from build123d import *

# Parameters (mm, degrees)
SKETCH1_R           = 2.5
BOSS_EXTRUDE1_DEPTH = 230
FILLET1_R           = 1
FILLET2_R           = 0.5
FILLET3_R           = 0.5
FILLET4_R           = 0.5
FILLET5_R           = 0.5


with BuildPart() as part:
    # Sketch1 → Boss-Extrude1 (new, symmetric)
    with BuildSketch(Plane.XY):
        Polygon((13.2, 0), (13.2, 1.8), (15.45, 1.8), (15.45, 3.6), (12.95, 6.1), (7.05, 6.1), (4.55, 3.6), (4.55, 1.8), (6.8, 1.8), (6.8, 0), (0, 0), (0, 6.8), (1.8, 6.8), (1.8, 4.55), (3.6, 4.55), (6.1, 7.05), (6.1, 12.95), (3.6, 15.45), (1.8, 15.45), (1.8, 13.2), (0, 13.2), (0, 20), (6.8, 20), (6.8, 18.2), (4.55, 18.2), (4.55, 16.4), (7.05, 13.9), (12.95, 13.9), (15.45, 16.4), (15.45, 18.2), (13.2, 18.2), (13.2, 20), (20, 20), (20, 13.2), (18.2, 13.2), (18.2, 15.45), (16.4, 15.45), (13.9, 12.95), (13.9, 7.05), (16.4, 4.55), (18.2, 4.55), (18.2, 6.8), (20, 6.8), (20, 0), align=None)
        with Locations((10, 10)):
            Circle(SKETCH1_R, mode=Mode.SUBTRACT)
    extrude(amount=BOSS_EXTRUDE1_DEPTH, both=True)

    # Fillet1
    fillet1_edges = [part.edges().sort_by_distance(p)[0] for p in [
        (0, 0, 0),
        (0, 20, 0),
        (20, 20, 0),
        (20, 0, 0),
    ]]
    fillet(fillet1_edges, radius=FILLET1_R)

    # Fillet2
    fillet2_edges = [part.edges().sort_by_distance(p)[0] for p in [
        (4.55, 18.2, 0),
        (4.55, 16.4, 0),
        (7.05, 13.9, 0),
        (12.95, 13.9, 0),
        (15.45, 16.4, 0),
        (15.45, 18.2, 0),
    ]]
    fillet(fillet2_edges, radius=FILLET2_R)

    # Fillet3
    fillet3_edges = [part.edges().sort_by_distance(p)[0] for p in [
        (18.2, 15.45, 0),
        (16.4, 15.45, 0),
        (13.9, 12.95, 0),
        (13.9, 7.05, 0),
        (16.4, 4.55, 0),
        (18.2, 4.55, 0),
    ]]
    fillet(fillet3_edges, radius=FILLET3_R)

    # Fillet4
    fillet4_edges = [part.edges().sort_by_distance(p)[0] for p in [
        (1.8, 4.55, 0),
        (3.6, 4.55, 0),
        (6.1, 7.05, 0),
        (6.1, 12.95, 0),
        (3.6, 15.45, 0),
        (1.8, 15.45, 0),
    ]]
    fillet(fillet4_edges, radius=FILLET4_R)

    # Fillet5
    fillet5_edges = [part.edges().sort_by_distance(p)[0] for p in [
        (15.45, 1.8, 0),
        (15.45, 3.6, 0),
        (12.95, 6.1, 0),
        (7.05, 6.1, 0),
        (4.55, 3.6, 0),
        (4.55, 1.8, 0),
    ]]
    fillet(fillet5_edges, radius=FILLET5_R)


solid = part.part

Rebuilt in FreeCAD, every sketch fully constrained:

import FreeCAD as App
import Part
import Sketcher

V = App.Vector


def edges_at(feature, points):
    """Names of the edges that pass closest to the given points."""
    edges = feature.Shape.Edges
    near = lambda p: min(range(len(edges)), key=lambda i: edges[i].distToShape(Part.Vertex(*p))[0])
    return sorted({f"Edge{near(p) + 1}" for p in points})

doc = App.newDocument("Part")
body = doc.addObject("PartDesign::Body", "Body")

# Sketch on XY plane
sketch1 = doc.addObject("Sketcher::SketchObject", "Sketch")
body.addObject(sketch1)
sketch1.AttachmentSupport = (doc.XY_Plane, [""])
sketch1.MapMode = "FlatFace"
sketch1.addGeometry([
    Part.LineSegment(V(13.2, 1.8, 0), V(13.2, 0, 0)),  # 0
    Part.LineSegment(V(13.2, 0, 0), V(20, 0, 0)),  # 1
    Part.LineSegment(V(20, 0, 0), V(20, 6.8, 0)),  # 2
    Part.LineSegment(V(20, 6.8, 0), V(18.2, 6.8, 0)),  # 3
    Part.LineSegment(V(18.2, 6.8, 0), V(18.2, 4.55, 0)),  # 4
    Part.LineSegment(V(18.2, 4.55, 0), V(16.4, 4.55, 0)),  # 5
    Part.LineSegment(V(16.4, 4.55, 0), V(13.9, 7.05, 0)),  # 6
    Part.LineSegment(V(13.9, 7.05, 0), V(13.9, 12.95, 0)),  # 7
    Part.LineSegment(V(13.9, 12.95, 0), V(16.4, 15.45, 0)),  # 8
    Part.LineSegment(V(16.4, 15.45, 0), V(18.2, 15.45, 0)),  # 9
    Part.LineSegment(V(18.2, 15.45, 0), V(18.2, 13.2, 0)),  # 10
    Part.LineSegment(V(18.2, 13.2, 0), V(20, 13.2, 0)),  # 11
    Part.LineSegment(V(20, 13.2, 0), V(20, 20, 0)),  # 12
    Part.LineSegment(V(20, 20, 0), V(13.2, 20, 0)),  # 13
    Part.LineSegment(V(13.2, 20, 0), V(13.2, 18.2, 0)),  # 14
    Part.LineSegment(V(13.2, 18.2, 0), V(15.45, 18.2, 0)),  # 15
    Part.LineSegment(V(15.45, 18.2, 0), V(15.45, 16.4, 0)),  # 16
    Part.LineSegment(V(15.45, 16.4, 0), V(12.95, 13.9, 0)),  # 17
    Part.LineSegment(V(12.95, 13.9, 0), V(7.05, 13.9, 0)),  # 18
    Part.LineSegment(V(7.05, 13.9, 0), V(4.55, 16.4, 0)),  # 19
    Part.LineSegment(V(4.55, 16.4, 0), V(4.55, 18.2, 0)),  # 20
    Part.LineSegment(V(4.55, 18.2, 0), V(6.8, 18.2, 0)),  # 21
    Part.LineSegment(V(6.8, 18.2, 0), V(6.8, 20, 0)),  # 22
    Part.LineSegment(V(6.8, 20, 0), V(0, 20, 0)),  # 23
    Part.LineSegment(V(0, 20, 0), V(0, 13.2, 0)),  # 24
    Part.LineSegment(V(0, 13.2, 0), V(1.8, 13.2, 0)),  # 25
    Part.LineSegment(V(1.8, 13.2, 0), V(1.8, 15.45, 0)),  # 26
    Part.LineSegment(V(1.8, 15.45, 0), V(3.6, 15.45, 0)),  # 27
    Part.LineSegment(V(3.6, 15.45, 0), V(6.1, 12.95, 0)),  # 28
    Part.LineSegment(V(6.1, 12.95, 0), V(6.1, 7.05, 0)),  # 29
    Part.LineSegment(V(6.1, 7.05, 0), V(3.6, 4.55, 0)),  # 30
    Part.LineSegment(V(3.6, 4.55, 0), V(1.8, 4.55, 0)),  # 31
    Part.LineSegment(V(1.8, 4.55, 0), V(1.8, 6.8, 0)),  # 32
    Part.LineSegment(V(1.8, 6.8, 0), V(0, 6.8, 0)),  # 33
    Part.LineSegment(V(0, 6.8, 0), V(0, 0, 0)),  # 34
    Part.LineSegment(V(0, 0, 0), V(6.8, 0, 0)),  # 35
    Part.LineSegment(V(6.8, 0, 0), V(6.8, 1.8, 0)),  # 36
    Part.LineSegment(V(6.8, 1.8, 0), V(4.55, 1.8, 0)),  # 37
    Part.LineSegment(V(4.55, 1.8, 0), V(4.55, 3.6, 0)),  # 38
    Part.LineSegment(V(4.55, 3.6, 0), V(7.05, 6.1, 0)),  # 39
    Part.LineSegment(V(7.05, 6.1, 0), V(12.95, 6.1, 0)),  # 40
    Part.LineSegment(V(12.95, 6.1, 0), V(15.45, 3.6, 0)),  # 41
    Part.LineSegment(V(15.45, 3.6, 0), V(15.45, 1.8, 0)),  # 42
    Part.LineSegment(V(15.45, 1.8, 0), V(13.2, 1.8, 0)),  # 43
    Part.Circle(V(10, 10, 0), V(0, 0, 1), 2.5),  # 44
], False)
sketch1.addConstraint([
    Sketcher.Constraint("Coincident", 0, 2, 1, 1),
    Sketcher.Constraint("Coincident", 1, 2, 2, 1),
    Sketcher.Constraint("Coincident", 2, 2, 3, 1),
    Sketcher.Constraint("Coincident", 3, 2, 4, 1),
    Sketcher.Constraint("Coincident", 4, 2, 5, 1),
    Sketcher.Constraint("Coincident", 5, 2, 6, 1),
    Sketcher.Constraint("Coincident", 6, 2, 7, 1),
    Sketcher.Constraint("Coincident", 7, 2, 8, 1),
    Sketcher.Constraint("Coincident", 8, 2, 9, 1),
    Sketcher.Constraint("Coincident", 9, 2, 10, 1),
    Sketcher.Constraint("Coincident", 10, 2, 11, 1),
    Sketcher.Constraint("Coincident", 11, 2, 12, 1),
    Sketcher.Constraint("Coincident", 12, 2, 13, 1),
    Sketcher.Constraint("Coincident", 13, 2, 14, 1),
    Sketcher.Constraint("Coincident", 14, 2, 15, 1),
    Sketcher.Constraint("Coincident", 15, 2, 16, 1),
    Sketcher.Constraint("Coincident", 16, 2, 17, 1),
    Sketcher.Constraint("Coincident", 17, 2, 18, 1),
    Sketcher.Constraint("Coincident", 18, 2, 19, 1),
    Sketcher.Constraint("Coincident", 19, 2, 20, 1),
    Sketcher.Constraint("Coincident", 20, 2, 21, 1),
    Sketcher.Constraint("Coincident", 21, 2, 22, 1),
    Sketcher.Constraint("Coincident", 22, 2, 23, 1),
    Sketcher.Constraint("Coincident", 23, 2, 24, 1),
    Sketcher.Constraint("Coincident", 24, 2, 25, 1),
    Sketcher.Constraint("Coincident", 25, 2, 26, 1),
    Sketcher.Constraint("Coincident", 26, 2, 27, 1),
    Sketcher.Constraint("Coincident", 27, 2, 28, 1),
    Sketcher.Constraint("Coincident", 28, 2, 29, 1),
    Sketcher.Constraint("Coincident", 29, 2, 30, 1),
    Sketcher.Constraint("Coincident", 30, 2, 31, 1),
    Sketcher.Constraint("Coincident", 31, 2, 32, 1),
    Sketcher.Constraint("Coincident", 32, 2, 33, 1),
    Sketcher.Constraint("Coincident", 33, 2, 34, 1),
    Sketcher.Constraint("Coincident", 34, 2, 35, 1),
    Sketcher.Constraint("Coincident", 35, 2, 36, 1),
    Sketcher.Constraint("Coincident", 36, 2, 37, 1),
    Sketcher.Constraint("Coincident", 37, 2, 38, 1),
    Sketcher.Constraint("Coincident", 38, 2, 39, 1),
    Sketcher.Constraint("Coincident", 39, 2, 40, 1),
    Sketcher.Constraint("Coincident", 40, 2, 41, 1),
    Sketcher.Constraint("Coincident", 41, 2, 42, 1),
    Sketcher.Constraint("Coincident", 42, 2, 43, 1),
    Sketcher.Constraint("Coincident", 43, 2, 0, 1),
    Sketcher.Constraint("Vertical", 0),
    Sketcher.Constraint("Horizontal", 1),
    Sketcher.Constraint("Vertical", 2),
    Sketcher.Constraint("Horizontal", 3),
    Sketcher.Constraint("Vertical", 4),
    Sketcher.Constraint("Horizontal", 5),
    Sketcher.Constraint("Vertical", 7),
    Sketcher.Constraint("Horizontal", 9),
    Sketcher.Constraint("Vertical", 10),
    Sketcher.Constraint("Horizontal", 11),
    Sketcher.Constraint("Vertical", 12),
    Sketcher.Constraint("Horizontal", 13),
    Sketcher.Constraint("Vertical", 14),
    Sketcher.Constraint("Horizontal", 15),
    Sketcher.Constraint("Vertical", 16),
    Sketcher.Constraint("Horizontal", 18),
    Sketcher.Constraint("Vertical", 20),
    Sketcher.Constraint("Horizontal", 21),
    Sketcher.Constraint("Vertical", 22),
    Sketcher.Constraint("Horizontal", 23),
    Sketcher.Constraint("Vertical", 24),
    Sketcher.Constraint("Horizontal", 25),
    Sketcher.Constraint("Vertical", 26),
    Sketcher.Constraint("Horizontal", 27),
    Sketcher.Constraint("Vertical", 29),
    Sketcher.Constraint("Horizontal", 31),
    Sketcher.Constraint("Vertical", 32),
    Sketcher.Constraint("Horizontal", 33),
    Sketcher.Constraint("Vertical", 34),
    Sketcher.Constraint("Horizontal", 35),
    Sketcher.Constraint("Vertical", 36),
    Sketcher.Constraint("Horizontal", 37),
    Sketcher.Constraint("Vertical", 38),
    Sketcher.Constraint("Horizontal", 40),
    Sketcher.Constraint("Vertical", 42),
    Sketcher.Constraint("Horizontal", 43),
    Sketcher.Constraint("Coincident", 34, 2, -1, 1),
    Sketcher.Constraint("PointOnObject", 0, 2, -1),
    Sketcher.Constraint("PointOnObject", 23, 2, -2),
    Sketcher.Constraint("Perpendicular", 6, 8),
    Sketcher.Constraint("Parallel", 8, 17),
    Sketcher.Constraint("Perpendicular", 17, 19),
    Sketcher.Constraint("Parallel", 19, 28),
    Sketcher.Constraint("Perpendicular", 28, 30),
    Sketcher.Constraint("Parallel", 30, 39),
    Sketcher.Constraint("Perpendicular", 39, 41),
    Sketcher.Constraint("Horizontal", 16, 2, 19, 2),
    Sketcher.Constraint("Horizontal", 15, 2, 20, 2),
    Sketcher.Constraint("Horizontal", 13, 2, 22, 2),
    Sketcher.Constraint("Horizontal", 11, 2, 24, 2),
    Sketcher.Constraint("Horizontal", 9, 2, 26, 2),
    Sketcher.Constraint("Horizontal", 7, 2, 28, 2),
    Sketcher.Constraint("Horizontal", 6, 2, 29, 2),
    Sketcher.Constraint("Horizontal", 5, 2, 30, 2),
    Sketcher.Constraint("Horizontal", 3, 2, 32, 2),
    Sketcher.Constraint("Horizontal", 38, 2, 41, 2),
    Sketcher.Constraint("Horizontal", 37, 2, 42, 2),
    Sketcher.Constraint("Vertical", 5, 2, 8, 2),
    Sketcher.Constraint("Vertical", 4, 2, 9, 2),
    Sketcher.Constraint("Vertical", 2, 2, 11, 2),
    Sketcher.Constraint("Vertical", 0, 2, 13, 2),
    Sketcher.Constraint("Vertical", 27, 2, 30, 2),
    Sketcher.Constraint("Vertical", 26, 2, 31, 2),
    Sketcher.Constraint("Vertical", 22, 2, 35, 2),
    Sketcher.Constraint("Vertical", 20, 2, 37, 2),
    Sketcher.Constraint("Vertical", 18, 2, 39, 2),
    Sketcher.Constraint("Vertical", 17, 2, 40, 2),
    Sketcher.Constraint("Equal", 3, 5),
    Sketcher.Constraint("Equal", 15, 21),
    Sketcher.Constraint("Equal", 13, 23),
    Sketcher.Constraint("Equal", 11, 25),
    Sketcher.Constraint("Equal", 25, 27),
    Sketcher.Constraint("Equal", 33, 0),
    Sketcher.Constraint("Equal", 35, 2),
    Sketcher.Constraint("Equal", 43, 4),
    Sketcher.Constraint("Equal", 40, 7),
    Sketcher.Constraint("Equal", 4, 10),
    Sketcher.Constraint("Equal", 2, 12),
    Sketcher.Constraint("Equal", 0, 14),
    Sketcher.Constraint("Equal", 14, 16),
    Sketcher.Constraint("Equal", 36, 38),
    Sketcher.Constraint("Equal", 8, 17),
    Sketcher.Constraint("Diameter", 44, 5.0),
    Sketcher.Constraint("DistanceX", 1, 1, 1, 2, 6.8),
    Sketcher.Constraint("DistanceX", 3, 2, 3, 1, 1.8),
    Sketcher.Constraint("DistanceX", 18, 2, 18, 1, 5.9),
    Sketcher.Constraint("DistanceX", -1, 1, 44, 3, 10.0),
    Sketcher.Constraint("DistanceY", -1, 1, 44, 3, 10.0),
    Sketcher.Constraint("DistanceX", -1, 1, 1, 2, 20.0),
    Sketcher.Constraint("DistanceX", 15, 1, 15, 2, 2.25),
])
pad1 = doc.addObject("PartDesign::Pad", "Pad")
body.addObject(pad1)
pad1.Profile = sketch1
pad1.Length = 460
pad1.Midplane = True
doc.recompute()

fillet = doc.addObject("PartDesign::Fillet", "Fillet")
body.addObject(fillet)
fillet.Base = (pad1, edges_at(pad1, [
    (0, 0, 0),
    (0, 20, 0),
    (20, 20, 0),
    (20, 0, 0),
]))
fillet.Radius = 1
doc.recompute()

fillet2 = doc.addObject("PartDesign::Fillet", "Fillet001")
body.addObject(fillet2)
fillet2.Base = (fillet, edges_at(fillet, [
    (4.55, 18.2, 0),
    (4.55, 16.4, 0),
    (7.05, 13.9, 0),
    (12.95, 13.9, 0),
    (15.45, 16.4, 0),
    (15.45, 18.2, 0),
]))
fillet2.Radius = 0.5
doc.recompute()

fillet3 = doc.addObject("PartDesign::Fillet", "Fillet002")
body.addObject(fillet3)
fillet3.Base = (fillet2, edges_at(fillet2, [
    (18.2, 15.45, 0),
    (16.4, 15.45, 0),
    (13.9, 12.95, 0),
    (13.9, 7.05, 0),
    (16.4, 4.55, 0),
    (18.2, 4.55, 0),
]))
fillet3.Radius = 0.5
doc.recompute()

fillet4 = doc.addObject("PartDesign::Fillet", "Fillet003")
body.addObject(fillet4)
fillet4.Base = (fillet3, edges_at(fillet3, [
    (1.8, 4.55, 0),
    (3.6, 4.55, 0),
    (6.1, 7.05, 0),
    (6.1, 12.95, 0),
    (3.6, 15.45, 0),
    (1.8, 15.45, 0),
]))
fillet4.Radius = 0.5
doc.recompute()

fillet5 = doc.addObject("PartDesign::Fillet", "Fillet004")
body.addObject(fillet5)
fillet5.Base = (fillet4, edges_at(fillet4, [
    (15.45, 1.8, 0),
    (15.45, 3.6, 0),
    (12.95, 6.1, 0),
    (7.05, 6.1, 0),
    (4.55, 3.6, 0),
    (4.55, 1.8, 0),
]))
fillet5.Radius = 0.5

doc.recompute()
